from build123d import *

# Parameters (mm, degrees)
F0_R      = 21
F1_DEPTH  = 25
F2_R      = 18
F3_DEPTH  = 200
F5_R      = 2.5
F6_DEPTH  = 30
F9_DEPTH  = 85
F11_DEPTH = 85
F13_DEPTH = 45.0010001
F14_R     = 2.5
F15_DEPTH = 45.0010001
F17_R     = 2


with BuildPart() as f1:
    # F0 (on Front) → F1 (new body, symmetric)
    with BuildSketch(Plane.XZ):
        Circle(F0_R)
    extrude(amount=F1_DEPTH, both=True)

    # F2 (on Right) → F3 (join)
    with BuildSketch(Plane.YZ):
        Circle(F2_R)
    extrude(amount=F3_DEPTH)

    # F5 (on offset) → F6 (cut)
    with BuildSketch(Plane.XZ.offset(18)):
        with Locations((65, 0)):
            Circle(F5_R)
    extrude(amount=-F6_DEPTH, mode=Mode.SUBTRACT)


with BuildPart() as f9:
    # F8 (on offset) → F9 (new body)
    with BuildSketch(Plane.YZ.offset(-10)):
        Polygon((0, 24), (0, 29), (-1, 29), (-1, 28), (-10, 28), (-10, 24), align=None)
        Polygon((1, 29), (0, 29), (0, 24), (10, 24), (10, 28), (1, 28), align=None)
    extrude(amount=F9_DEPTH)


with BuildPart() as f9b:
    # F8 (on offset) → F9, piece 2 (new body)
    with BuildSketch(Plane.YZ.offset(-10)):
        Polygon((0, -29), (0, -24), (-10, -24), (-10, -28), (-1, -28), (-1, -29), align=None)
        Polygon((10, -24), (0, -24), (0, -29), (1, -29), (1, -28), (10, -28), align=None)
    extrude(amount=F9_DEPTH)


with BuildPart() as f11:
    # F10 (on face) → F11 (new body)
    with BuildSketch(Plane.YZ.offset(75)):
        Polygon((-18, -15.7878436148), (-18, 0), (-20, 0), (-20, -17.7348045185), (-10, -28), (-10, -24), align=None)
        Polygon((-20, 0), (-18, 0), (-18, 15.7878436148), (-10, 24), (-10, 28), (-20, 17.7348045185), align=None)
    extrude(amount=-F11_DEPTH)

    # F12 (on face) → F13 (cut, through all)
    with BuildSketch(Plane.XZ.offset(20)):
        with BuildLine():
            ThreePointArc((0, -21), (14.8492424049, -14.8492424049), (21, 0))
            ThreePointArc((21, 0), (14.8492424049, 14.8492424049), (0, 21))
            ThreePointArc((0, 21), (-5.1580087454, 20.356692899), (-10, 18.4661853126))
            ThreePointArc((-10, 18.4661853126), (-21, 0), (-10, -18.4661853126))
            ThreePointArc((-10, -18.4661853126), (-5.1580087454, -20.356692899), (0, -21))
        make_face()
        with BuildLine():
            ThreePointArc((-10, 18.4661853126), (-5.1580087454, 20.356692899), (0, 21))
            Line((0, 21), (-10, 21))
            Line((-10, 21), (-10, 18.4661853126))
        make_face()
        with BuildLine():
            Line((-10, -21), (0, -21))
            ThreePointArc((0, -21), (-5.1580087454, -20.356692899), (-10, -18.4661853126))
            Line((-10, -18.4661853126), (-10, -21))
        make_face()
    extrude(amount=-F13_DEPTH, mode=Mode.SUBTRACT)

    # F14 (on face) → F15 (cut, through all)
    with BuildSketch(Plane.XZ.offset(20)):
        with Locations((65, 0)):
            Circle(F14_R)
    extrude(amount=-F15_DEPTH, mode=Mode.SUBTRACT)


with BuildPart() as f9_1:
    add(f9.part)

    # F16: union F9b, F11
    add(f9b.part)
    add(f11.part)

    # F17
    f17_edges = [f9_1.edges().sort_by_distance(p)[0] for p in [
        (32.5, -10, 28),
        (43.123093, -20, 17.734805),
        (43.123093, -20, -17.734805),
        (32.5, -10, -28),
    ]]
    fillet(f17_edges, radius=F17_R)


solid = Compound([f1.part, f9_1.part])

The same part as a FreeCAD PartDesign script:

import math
import FreeCAD as App
import Part
import Sketcher

V = App.Vector


def edges_at(feature, points):
    """Names of the edges that pass closest to the given points."""
    edges = feature.Shape.Edges
    near = lambda p: min(range(len(edges)), key=lambda i: edges[i].distToShape(Part.Vertex(*p))[0])
    return sorted({f"Edge{near(p) + 1}" for p in points})

doc = App.newDocument("Part")
params = doc.addObject("Spreadsheet::Sheet", "Params")
for row, (alias, value) in enumerate([
    ("sketch1_diameter", "42 mm"),
    ("pad1_length", "50 mm"),
    ("sketch2_diameter", "36 mm"),
    ("pad2_length", "200 mm"),
    ("sketch3_diameter", "5 mm"),
    ("pocket1_length", "30 mm"),
    ("sketch4_width", "9 mm"),
    ("sketch4_width2", "20 mm"),
    ("sketch4_height", "1 mm"),
    ("sketch4_height2", "4 mm"),
    ("pad3_length", "85 mm"),
    ("sketch5_width", "9 mm"),
    ("sketch5_width2", "2 mm"),
    ("sketch5_height", "4 mm"),
    ("sketch5_height2", "1 mm"),
    ("pad4_length", "85 mm"),
    ("sketch6_height", "4 mm"),
    ("pad5_length", "85 mm"),
    ("sketch7_radius", "21 mm"),
    ("sketch7_width", "10 mm"),
    ("sketch8_diameter", "5 mm"),
    ("fillet_radius", "2 mm"),
], start=1):
    params.set(f"A{row}", alias)
    params.set(f"B{row}", "=" + value)
    params.setAlias(f"B{row}", alias)

body = doc.addObject("PartDesign::Body", "Body")

sketch1 = body.newObject("Sketcher::SketchObject", "Sketch")
sketch1.AttachmentSupport = (doc.getObject("XZ_Plane"), [""])
sketch1.MapMode = "FlatFace"
sketch1.addGeometry(Part.Circle(V(0, 0, 0), V(0, 0, 1), 21), False)
sketch1.addConstraint(Sketcher.Constraint("Coincident", 0, 3, -1, 1))
sketch1.addConstraint(Sketcher.Constraint("Diameter", 0, 42.0))
sketch1.setExpression("Constraints[1]", "Params.sketch1_diameter")
pad1 = body.newObject("PartDesign::Pad", "Pad")
pad1.Profile = sketch1
pad1.setExpression("Length", "Params.pad1_length")
pad1.Midplane = True

sketch2 = body.newObject("Sketcher::SketchObject", "Sketch001")
sketch2.AttachmentSupport = (doc.getObject("YZ_Plane"), [""])
sketch2.MapMode = "FlatFace"
sketch2.addGeometry(Part.Circle(V(0, 0, 0), V(0, 0, 1), 18), False)
sketch2.addConstraint(Sketcher.Constraint("Coincident", 0, 3, -1, 1))
sketch2.addConstraint(Sketcher.Constraint("Diameter", 0, 36.0))
sketch2.setExpression("Constraints[1]", "Params.sketch2_diameter")
pad2 = body.newObject("PartDesign::Pad", "Pad001")
pad2.Profile = sketch2
pad2.setExpression("Length", "Params.pad2_length")

sketch3 = body.newObject("Sketcher::SketchObject", "Sketch002")
sketch3.AttachmentSupport = (doc.getObject("XZ_Plane"), [""])
sketch3.MapMode = "FlatFace"
sketch3.AttachmentOffset = App.Placement(V(0, 0, 18), App.Rotation())
sketch3.addGeometry(Part.Circle(V(65, 0, 0), V(0, 0, 1), 2.5), False)
sketch3.addConstraint(Sketcher.Constraint("PointOnObject", 0, 3, -1))
sketch3.addConstraint(Sketcher.Constraint("Diameter", 0, 5.0))
sketch3.addConstraint(Sketcher.Constraint("DistanceX", -1, 1, 0, 3, 65.0))
sketch3.setExpression("Constraints[1]", "Params.sketch3_diameter")
pocket1 = body.newObject("PartDesign::Pocket", "Pocket")
pocket1.Profile = sketch3
pocket1.setExpression("Length", "Params.pocket1_length")
body2 = doc.addObject("PartDesign::Body", "Body001")

sketch4 = body2.newObject("Sketcher::SketchObject", "Sketch003")
sketch4.AttachmentSupport = (doc.getObject("YZ_Plane001"), [""])
sketch4.MapMode = "FlatFace"
sketch4.AttachmentOffset = App.Placement(V(0, 0, -10), App.Rotation())
sketch4.addGeometry(Part.LineSegment(V(-1, 29, 0), V(-1, 28, 0)), False)
sketch4.addGeometry(Part.LineSegment(V(-1, 28, 0), V(-10, 28, 0)), False)
sketch4.addGeometry(Part.LineSegment(V(-10, 28, 0), V(-10, 24, 0)), False)
sketch4.addGeometry(Part.LineSegment(V(-10, 24, 0), V(10, 24, 0)), False)
sketch4.addGeometry(Part.LineSegment(V(10, 24, 0), V(10, 28, 0)), False)
sketch4.addGeometry(Part.LineSegment(V(10, 28, 0), V(1, 28, 0)), False)
sketch4.addGeometry(Part.LineSegment(V(1, 28, 0), V(1, 29, 0)), False)
sketch4.addGeometry(Part.LineSegment(V(1, 29, 0), V(-1, 29, 0)), False)
sketch4.addConstraint(Sketcher.Constraint("Coincident", 0, 2, 1, 1))
sketch4.addConstraint(Sketcher.Constraint("Coincident", 1, 2, 2, 1))
sketch4.addConstraint(Sketcher.Constraint("Coincident", 2, 2, 3, 1))
sketch4.addConstraint(Sketcher.Constraint("Coincident", 3, 2, 4, 1))
sketch4.addConstraint(Sketcher.Constraint("Coincident", 4, 2, 5, 1))
sketch4.addConstraint(Sketcher.Constraint("Coincident", 5, 2, 6, 1))
sketch4.addConstraint(Sketcher.Constraint("Coincident", 6, 2, 7, 1))
sketch4.addConstraint(Sketcher.Constraint("Coincident", 7, 2, 0, 1))
sketch4.addConstraint(Sketcher.Constraint("Vertical", 0))
sketch4.addConstraint(Sketcher.Constraint("Horizontal", 1))
sketch4.addConstraint(Sketcher.Constraint("Vertical", 2))
sketch4.addConstraint(Sketcher.Constraint("Horizontal", 3))
sketch4.addConstraint(Sketcher.Constraint("Vertical", 4))
sketch4.addConstraint(Sketcher.Constraint("Horizontal", 5))
sketch4.addConstraint(Sketcher.Constraint("Vertical", 6))
sketch4.addConstraint(Sketcher.Constraint("Horizontal", 7))
sketch4.addConstraint(Sketcher.Constraint("Symmetric", 1, 2, 4, 2, -2))
sketch4.addConstraint(Sketcher.Constraint("Equal", 1, 5))
sketch4.addConstraint(Sketcher.Constraint("DistanceX", 1, 2, 1, 1, 9.0))
sketch4.addConstraint(Sketcher.Constraint("DistanceX", 3, 1, 3, 2, 20.0))
sketch4.addConstraint(Sketcher.Constraint("DistanceY", 0, 2, 0, 1, 1.0))
sketch4.addConstraint(Sketcher.Constraint("DistanceY", 2, 2, 2, 1, 4.0))
sketch4.addConstraint(Sketcher.Constraint("DistanceY", -1, 1, 0, 2, 28.0))
sketch4.setExpression("Constraints[18]", "Params.sketch4_width")
sketch4.setExpression("Constraints[19]", "Params.sketch4_width2")
sketch4.setExpression("Constraints[20]", "Params.sketch4_height")
sketch4.setExpression("Constraints[21]", "Params.sketch4_height2")
pad3 = body2.newObject("PartDesign::Pad", "Pad002")
pad3.Profile = sketch4
pad3.setExpression("Length", "Params.pad3_length")
body3 = doc.addObject("PartDesign::Body", "Body002")

sketch5 = body3.newObject("Sketcher::SketchObject", "Sketch004")
sketch5.AttachmentSupport = (doc.getObject("YZ_Plane002"), [""])
sketch5.MapMode = "FlatFace"
sketch5.AttachmentOffset = App.Placement(V(0, 0, -10), App.Rotation())
sketch5.addGeometry(Part.LineSegment(V(-10, -24, 0), V(-10, -28, 0)), False)
sketch5.addGeometry(Part.LineSegment(V(-10, -28, 0), V(-1, -28, 0)), False)
sketch5.addGeometry(Part.LineSegment(V(-1, -28, 0), V(-1, -29, 0)), False)
sketch5.addGeometry(Part.LineSegment(V(-1, -29, 0), V(1, -29, 0)), False)
sketch5.addGeometry(Part.LineSegment(V(1, -29, 0), V(1, -28, 0)), False)
sketch5.addGeometry(Part.LineSegment(V(1, -28, 0), V(10, -28, 0)), False)
sketch5.addGeometry(Part.LineSegment(V(10, -28, 0), V(10, -24, 0)), False)
sketch5.addGeometry(Part.LineSegment(V(10, -24, 0), V(-10, -24, 0)), False)
sketch5.addConstraint(Sketcher.Constraint("Coincident", 0, 2, 1, 1))
sketch5.addConstraint(Sketcher.Constraint("Coincident", 1, 2, 2, 1))
sketch5.addConstraint(Sketcher.Constraint("Coincident", 2, 2, 3, 1))
sketch5.addConstraint(Sketcher.Constraint("Coincident", 3, 2, 4, 1))
sketch5.addConstraint(Sketcher.Constraint("Coincident", 4, 2, 5, 1))
sketch5.addConstraint(Sketcher.Constraint("Coincident", 5, 2, 6, 1))
sketch5.addConstraint(Sketcher.Constraint("Coincident", 6, 2, 7, 1))
sketch5.addConstraint(Sketcher.Constraint("Coincident", 7, 2, 0, 1))
sketch5.addConstraint(Sketcher.Constraint("Vertical", 0))
sketch5.addConstraint(Sketcher.Constraint("Horizontal", 1))
sketch5.addConstraint(Sketcher.Constraint("Vertical", 2))
sketch5.addConstraint(Sketcher.Constraint("Horizontal", 3))
sketch5.addConstraint(Sketcher.Constraint("Vertical", 4))
sketch5.addConstraint(Sketcher.Constraint("Horizontal", 5))
sketch5.addConstraint(Sketcher.Constraint("Vertical", 6))
sketch5.addConstraint(Sketcher.Constraint("Horizontal", 7))
sketch5.addConstraint(Sketcher.Constraint("Symmetric", 1, 2, 4, 2, -2))
sketch5.addConstraint(Sketcher.Constraint("Equal", 1, 5))
sketch5.addConstraint(Sketcher.Constraint("DistanceX", 1, 1, 1, 2, 9.0))
sketch5.addConstraint(Sketcher.Constraint("DistanceX", 3, 1, 3, 2, 2.0))
sketch5.addConstraint(Sketcher.Constraint("DistanceY", 0, 2, 0, 1, 4.0))
sketch5.addConstraint(Sketcher.Constraint("DistanceY", 2, 2, 2, 1, 1.0))
sketch5.addConstraint(Sketcher.Constraint("DistanceY", 0, 2, -1, 1, 28.0))
sketch5.setExpression("Constraints[18]", "Params.sketch5_width")
sketch5.setExpression("Constraints[19]", "Params.sketch5_width2")
sketch5.setExpression("Constraints[20]", "Params.sketch5_height")
sketch5.setExpression("Constraints[21]", "Params.sketch5_height2")
pad4 = body3.newObject("PartDesign::Pad", "Pad003")
pad4.Profile = sketch5
pad4.setExpression("Length", "Params.pad4_length")
body4 = doc.addObject("PartDesign::Body", "Body003")

sketch6 = body4.newObject("Sketcher::SketchObject", "Sketch005")
sketch6.AttachmentSupport = (doc.getObject("YZ_Plane003"), [""])
sketch6.MapMode = "FlatFace"
sketch6.AttachmentOffset = App.Placement(V(0, 0, 75), App.Rotation())
sketch6.addGeometry(Part.LineSegment(V(-18, -15.787844, 0), V(-18, 15.787844, 0)), False)
sketch6.addGeometry(Part.LineSegment(V(-18, 15.787844, 0), V(-10, 24, 0)), False)
sketch6.addGeometry(Part.LineSegment(V(-10, 24, 0), V(-10, 28, 0)), False)
sketch6.addGeometry(Part.LineSegment(V(-10, 28, 0), V(-20, 17.734805, 0)), False)
sketch6.addGeometry(Part.LineSegment(V(-20, 17.734805, 0), V(-20, -17.734805, 0)), False)
sketch6.addGeometry(Part.LineSegment(V(-20, -17.734805, 0), V(-10, -28, 0)), False)
sketch6.addGeometry(Part.LineSegment(V(-10, -28, 0), V(-10, -24, 0)), False)
sketch6.addGeometry(Part.LineSegment(V(-10, -24, 0), V(-18, -15.787844, 0)), False)
sketch6.addConstraint(Sketcher.Constraint("Coincident", 0, 2, 1, 1))
sketch6.addConstraint(Sketcher.Constraint("Coincident", 1, 2, 2, 1))
sketch6.addConstraint(Sketcher.Constraint("Coincident", 2, 2, 3, 1))
sketch6.addConstraint(Sketcher.Constraint("Coincident", 3, 2, 4, 1))
sketch6.addConstraint(Sketcher.Constraint("Coincident", 4, 2, 5, 1))
sketch6.addConstraint(Sketcher.Constraint("Coincident", 5, 2, 6, 1))
sketch6.addConstraint(Sketcher.Constraint("Coincident", 6, 2, 7, 1))
sketch6.addConstraint(Sketcher.Constraint("Coincident", 7, 2, 0, 1))
sketch6.addConstraint(Sketcher.Constraint("Vertical", 0))
sketch6.addConstraint(Sketcher.Constraint("Vertical", 2))
sketch6.addConstraint(Sketcher.Constraint("Vertical", 4))
sketch6.addConstraint(Sketcher.Constraint("Vertical", 6))
sketch6.addConstraint(Sketcher.Constraint("Symmetric", 2, 2, 5, 2, -1))
sketch6.addConstraint(Sketcher.Constraint("Parallel", 1, 3))
sketch6.addConstraint(Sketcher.Constraint("Parallel", 5, 7))
sketch6.addConstraint(Sketcher.Constraint("Equal", 2, 6))
sketch6.addConstraint(Sketcher.Constraint("Equal", 3, 5))
sketch6.addConstraint(Sketcher.Constraint("DistanceY", 2, 1, 2, 2, 4.0))
sketch6.addConstraint(Sketcher.Constraint("DistanceX", 0, 2, -1, 1, 18.0))
sketch6.addConstraint(Sketcher.Constraint("DistanceX", 1, 2, -1, 1, 10.0))
sketch6.addConstraint(Sketcher.Constraint("DistanceY", -1, 1, 1, 2, 24.0))
sketch6.addConstraint(Sketcher.Constraint("DistanceX", 3, 2, -1, 1, 20.0))
sketch6.addConstraint(Sketcher.Constraint("DistanceY", 4, 2, 4, 1, 35.469609))
sketch6.setExpression("Constraints[17]", "Params.sketch6_height")
pad5 = body4.newObject("PartDesign::Pad", "Pad004")
pad5.Profile = sketch6
pad5.setExpression("Length", "Params.pad5_length")
pad5.Reversed = True

sketch7 = body4.newObject("Sketcher::SketchObject", "Sketch006")
sketch7.AttachmentSupport = (doc.getObject("XZ_Plane003"), [""])
sketch7.MapMode = "FlatFace"
sketch7.AttachmentOffset = App.Placement(V(0, 0, 20), App.Rotation())
sketch7.addGeometry(Part.ArcOfCircle(Part.Circle(V(0, 0, 0), V(0, 0, 1), 21), math.radians(-90), math.radians(0)), False)
sketch7.addGeometry(Part.ArcOfCircle(Part.Circle(V(0, 0, 0), V(0, 0, 1), 21), math.radians(0), math.radians(90)), False)
sketch7.addGeometry(Part.LineSegment(V(0, 21, 0), V(-10, 21, 0)), False)
sketch7.addGeometry(Part.LineSegment(V(-10, 21, 0), V(-10, 18.466185, 0)), False)
sketch7.addGeometry(Part.ArcOfCircle(Part.Circle(V(0, 0, 0), V(0, 0, 1), 21), math.radians(118.43689), math.radians(241.56311)), False)
sketch7.addGeometry(Part.LineSegment(V(-10, -18.466185, 0), V(-10, -21, 0)), False)
sketch7.addGeometry(Part.LineSegment(V(-10, -21, 0), V(0, -21, 0)), False)
sketch7.addConstraint(Sketcher.Constraint("Tangent", 0, 2, 1, 1))
sketch7.addConstraint(Sketcher.Constraint("Tangent", 1, 2, 2, 1))
sketch7.addConstraint(Sketcher.Constraint("Coincident", 2, 2, 3, 1))
sketch7.addConstraint(Sketcher.Constraint("Coincident", 3, 2, 4, 1))
sketch7.addConstraint(Sketcher.Constraint("Coincident", 4, 2, 5, 1))
sketch7.addConstraint(Sketcher.Constraint("Coincident", 5, 2, 6, 1))
sketch7.addConstraint(Sketcher.Constraint("Tangent", 6, 2, 0, 1))
sketch7.addConstraint(Sketcher.Constraint("Horizontal", 2))
sketch7.addConstraint(Sketcher.Constraint("Vertical", 3))
sketch7.addConstraint(Sketcher.Constraint("Vertical", 5))
sketch7.addConstraint(Sketcher.Constraint("Horizontal", 6))
sketch7.addConstraint(Sketcher.Constraint("Coincident", 0, 3, -1, 1))
sketch7.addConstraint(Sketcher.Constraint("Coincident", 4, 3, -1, 1))
sketch7.addConstraint(Sketcher.Constraint("Equal", 0, 1))
sketch7.addConstraint(Sketcher.Constraint("Equal", 1, 4))
sketch7.addConstraint(Sketcher.Constraint("PointOnObject", 0, 2, -1))
sketch7.addConstraint(Sketcher.Constraint("Vertical", 3, 2, 4, 2))
sketch7.addConstraint(Sketcher.Constraint("Radius", 0, 21.0))
sketch7.addConstraint(Sketcher.Constraint("DistanceX", 2, 2, 2, 1, 10.0))
sketch7.setExpression("Constraints[17]", "Params.sketch7_radius")
sketch7.setExpression("Constraints[18]", "Params.sketch7_width")
pocket2 = body4.newObject("PartDesign::Pocket", "Pocket001")
pocket2.Profile = sketch7
pocket2.Type = "ThroughAll"

sketch8 = body4.newObject("Sketcher::SketchObject", "Sketch007")
sketch8.AttachmentSupport = (doc.getObject("XZ_Plane003"), [""])
sketch8.MapMode = "FlatFace"
sketch8.AttachmentOffset = App.Placement(V(0, 0, 20), App.Rotation())
sketch8.addGeometry(Part.Circle(V(65, 0, 0), V(0, 0, 1), 2.5), False)
sketch8.addConstraint(Sketcher.Constraint("PointOnObject", 0, 3, -1))
sketch8.addConstraint(Sketcher.Constraint("Diameter", 0, 5.0))
sketch8.addConstraint(Sketcher.Constraint("DistanceX", -1, 1, 0, 3, 65.0))
sketch8.setExpression("Constraints[1]", "Params.sketch8_diameter")
pocket3 = body4.newObject("PartDesign::Pocket", "Pocket002")
pocket3.Profile = sketch8
pocket3.Type = "ThroughAll"
body2.AllowCompound = True
doc.recompute()

boolean = body2.newObject("PartDesign::Boolean", "Boolean")
boolean.Type = "Fuse"
boolean.addObjects([body3])
doc.recompute()

boolean2 = body2.newObject("PartDesign::Boolean", "Boolean001")
boolean2.Type = "Fuse"
boolean2.addObjects([body4])
doc.recompute()

fillet = body2.newObject("PartDesign::Fillet", "Fillet")
fillet.Base = (boolean2, edges_at(boolean2, [
    (32.5, -10, 28),
    (43.123, -20, 17.735),
    (43.123, -20, -17.735),
    (32.5, -10, -28),
]))
fillet.setExpression("Radius", "Params.fillet_radius")

doc.recompute()
